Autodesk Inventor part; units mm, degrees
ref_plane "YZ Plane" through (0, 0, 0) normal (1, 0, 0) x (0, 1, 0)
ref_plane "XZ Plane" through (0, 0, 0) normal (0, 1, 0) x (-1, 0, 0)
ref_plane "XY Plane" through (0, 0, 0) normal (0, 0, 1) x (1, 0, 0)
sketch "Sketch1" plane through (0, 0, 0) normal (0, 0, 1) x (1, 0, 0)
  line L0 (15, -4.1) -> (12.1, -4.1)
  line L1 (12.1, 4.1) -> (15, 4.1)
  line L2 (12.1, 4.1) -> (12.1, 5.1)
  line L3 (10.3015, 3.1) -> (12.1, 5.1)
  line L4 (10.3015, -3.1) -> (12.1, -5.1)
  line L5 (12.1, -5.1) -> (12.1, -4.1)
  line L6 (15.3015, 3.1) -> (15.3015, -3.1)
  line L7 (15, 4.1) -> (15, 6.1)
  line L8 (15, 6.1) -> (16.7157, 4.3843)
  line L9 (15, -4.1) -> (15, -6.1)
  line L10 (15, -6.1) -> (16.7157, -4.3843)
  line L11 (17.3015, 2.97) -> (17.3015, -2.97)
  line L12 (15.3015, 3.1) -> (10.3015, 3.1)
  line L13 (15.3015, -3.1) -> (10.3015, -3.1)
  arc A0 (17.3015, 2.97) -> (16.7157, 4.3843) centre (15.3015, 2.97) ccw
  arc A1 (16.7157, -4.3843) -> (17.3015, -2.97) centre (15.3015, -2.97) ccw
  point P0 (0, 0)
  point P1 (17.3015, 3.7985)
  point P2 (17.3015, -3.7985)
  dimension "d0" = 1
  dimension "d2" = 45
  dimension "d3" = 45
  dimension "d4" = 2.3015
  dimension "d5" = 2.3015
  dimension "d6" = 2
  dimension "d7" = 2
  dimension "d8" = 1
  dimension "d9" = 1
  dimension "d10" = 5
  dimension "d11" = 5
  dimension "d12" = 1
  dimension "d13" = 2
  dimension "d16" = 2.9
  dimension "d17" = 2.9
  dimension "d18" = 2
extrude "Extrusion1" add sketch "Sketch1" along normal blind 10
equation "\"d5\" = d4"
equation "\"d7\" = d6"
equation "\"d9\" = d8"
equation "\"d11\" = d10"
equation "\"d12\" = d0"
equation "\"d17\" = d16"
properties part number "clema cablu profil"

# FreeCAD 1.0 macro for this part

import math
import FreeCAD as App
import Part
import Sketcher

V = App.Vector
Q = App.Units.Quantity

doc = App.newDocument("Part")
body = doc.addObject("PartDesign::Body", "Body")

# Sketch on XY plane
sketch1 = body.newObject("Sketcher::SketchObject", "Sketch")
sketch1.AttachmentSupport = (doc.getObject("XY_Plane"), [""])
sketch1.MapMode = "FlatFace"
sketch1.addGeometry([
    Part.LineSegment(V(12.1, -4.1, 0), V(15, -4.1, 0)),  # 0
    Part.LineSegment(V(15, -4.1, 0), V(15, -6.1, 0)),  # 1
    Part.LineSegment(V(15, -6.1, 0), V(16.7157, -4.3843, 0)),  # 2
    Part.ArcOfCircle(Part.Circle(V(15.3015, -2.97, 0), V(0, 0, 1), 2.000052), math.radians(-45.002026), math.radians(0)),  # 3
    Part.LineSegment(V(17.3015, -2.97, 0), V(17.3015, 2.97, 0)),  # 4
    Part.ArcOfCircle(Part.Circle(V(15.3015, 2.97, 0), V(0, 0, 1), 2), math.radians(0), math.radians(45.002026)),  # 5
    Part.LineSegment(V(16.7157, 4.3843, 0), V(15, 6.1, 0)),  # 6
    Part.LineSegment(V(15, 6.1, 0), V(15, 4.1, 0)),  # 7
    Part.LineSegment(V(15, 4.1, 0), V(12.1, 4.1, 0)),  # 8
    Part.LineSegment(V(12.1, 4.1, 0), V(12.1, 5.1, 0)),  # 9
    Part.LineSegment(V(12.1, 5.1, 0), V(10.3015, 3.1, 0)),  # 10
    Part.LineSegment(V(10.3015, 3.1, 0), V(15.3015, 3.1, 0)),  # 11
    Part.LineSegment(V(15.3015, 3.1, 0), V(15.3015, -3.1, 0)),  # 12
    Part.LineSegment(V(15.3015, -3.1, 0), V(10.3015, -3.1, 0)),  # 13
    Part.LineSegment(V(10.3015, -3.1, 0), V(12.1, -5.1, 0)),  # 14
    Part.LineSegment(V(12.1, -5.1, 0), V(12.1, -4.1, 0)),  # 15
], False)
sketch1.addConstraint([
    Sketcher.Constraint("Coincident", 0, 2, 1, 1),
    Sketcher.Constraint("Coincident", 1, 2, 2, 1),
    Sketcher.Constraint("Tangent", 2, 2, 3, 1),
    Sketcher.Constraint("Tangent", 3, 2, 4, 1),
    Sketcher.Constraint("Tangent", 4, 2, 5, 1),
    Sketcher.Constraint("Tangent", 5, 2, 6, 1),
    Sketcher.Constraint("Coincident", 6, 2, 7, 1),
    Sketcher.Constraint("Coincident", 7, 2, 8, 1),
    Sketcher.Constraint("Coincident", 8, 2, 9, 1),
    Sketcher.Constraint("Coincident", 9, 2, 10, 1),
    Sketcher.Constraint("Coincident", 10, 2, 11, 1),
    Sketcher.Constraint("Coincident", 11, 2, 12, 1),
    Sketcher.Constraint("Coincident", 12, 2, 13, 1),
    Sketcher.Constraint("Coincident", 13, 2, 14, 1),
    Sketcher.Constraint("Coincident", 14, 2, 15, 1),
    Sketcher.Constraint("Coincident", 15, 2, 0, 1),
    Sketcher.Constraint("Horizontal", 0),
    Sketcher.Constraint("Vertical", 1),
    Sketcher.Constraint("Vertical", 4),
    Sketcher.Constraint("Vertical", 7),
    Sketcher.Constraint("Horizontal", 8),
    Sketcher.Constraint("Vertical", 9),
    Sketcher.Constraint("Horizontal", 11),
    Sketcher.Constraint("Vertical", 12),
    Sketcher.Constraint("Horizontal", 13),
    Sketcher.Constraint("Vertical", 15),
    Sketcher.Constraint("Equal", 3, 5),
    Sketcher.Constraint("Symmetric", 2, 2, 5, 2, -1),
    Sketcher.Constraint("Symmetric", 0, 2, 7, 2, -1),
    Sketcher.Constraint("Symmetric", 10, 2, 13, 2, -1),
    Sketcher.Constraint("Symmetric", 9, 2, 14, 2, -1),
    Sketcher.Constraint("Perpendicular", 2, 6),
    Sketcher.Constraint("Vertical", 5, 3, 11, 2),
    Sketcher.Constraint("Radius", 3, Q("2 mm")),
    Sketcher.Constraint("DistanceX", 11, 1, 11, 2, Q("5 mm")),
    Sketcher.Constraint("DistanceY", 1, 2, 1, 1, Q("2 mm")),
    Sketcher.Constraint("DistanceY", 9, 1, 9, 2, Q("1 mm")),
    Sketcher.Constraint("DistanceX", 0, 1, 0, 2, Q("2.9 mm")),
    Sketcher.Constraint("DistanceY", 10, 2, 8, 2, Q("1 mm")),
    Sketcher.Constraint("DistanceY", 12, 2, 12, 1, Q("6.2 mm")),
    Sketcher.Constraint("DistanceX", -1, 1, 0, 2, Q("15 mm")),
    Sketcher.Constraint("DistanceY", 4, 1, 4, 2, Q("5.94 mm")),
])
pad1 = body.newObject("PartDesign::Pad", "Pad")
pad1.Profile = sketch1
pad1.Length = 10

doc.recompute()
